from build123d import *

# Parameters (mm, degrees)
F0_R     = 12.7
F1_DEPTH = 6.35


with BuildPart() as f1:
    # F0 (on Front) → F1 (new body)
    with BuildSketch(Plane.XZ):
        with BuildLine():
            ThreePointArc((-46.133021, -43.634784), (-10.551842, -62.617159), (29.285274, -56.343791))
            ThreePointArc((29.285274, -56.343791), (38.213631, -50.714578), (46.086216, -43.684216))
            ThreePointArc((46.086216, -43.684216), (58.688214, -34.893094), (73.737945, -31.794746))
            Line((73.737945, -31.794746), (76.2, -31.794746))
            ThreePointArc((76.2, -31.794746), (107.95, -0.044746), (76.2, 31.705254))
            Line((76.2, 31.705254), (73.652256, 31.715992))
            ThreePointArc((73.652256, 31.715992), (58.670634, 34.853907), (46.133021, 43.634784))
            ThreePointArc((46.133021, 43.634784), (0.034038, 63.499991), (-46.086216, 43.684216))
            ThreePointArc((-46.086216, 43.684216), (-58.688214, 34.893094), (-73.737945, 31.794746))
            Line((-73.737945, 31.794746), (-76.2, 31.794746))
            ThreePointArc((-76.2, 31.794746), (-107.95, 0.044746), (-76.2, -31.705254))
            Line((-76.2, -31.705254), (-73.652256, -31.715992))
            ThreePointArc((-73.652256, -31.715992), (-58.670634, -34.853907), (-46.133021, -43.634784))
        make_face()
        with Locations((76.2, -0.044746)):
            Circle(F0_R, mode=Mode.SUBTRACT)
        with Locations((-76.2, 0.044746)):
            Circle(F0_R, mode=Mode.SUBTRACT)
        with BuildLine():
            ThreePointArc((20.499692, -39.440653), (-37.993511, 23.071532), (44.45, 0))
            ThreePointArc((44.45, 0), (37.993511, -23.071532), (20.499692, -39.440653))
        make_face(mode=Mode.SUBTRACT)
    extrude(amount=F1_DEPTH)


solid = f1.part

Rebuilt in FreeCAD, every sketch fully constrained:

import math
import FreeCAD as App
import Part
import Sketcher
Q = App.Units.Quantity

doc = App.newDocument("Part")
body = doc.addObject("PartDesign::Body", "Body")

sketch1 = body.newObject("Sketcher::SketchObject", "Sketch")
sketch1.AttachmentSupport = (doc.getObject("XZ_Plane"), [""])
sketch1.MapMode = "FlatFace"
sketch1.addGeometry([
    Part.ArcOfCircle(Part.Circle(App.Vector(0.000001, 0.000002, 0), App.Vector(0, 0, 1), 63.500002), math.radians(-136.594128), math.radians(-62.536375)),
    Part.ArcOfCircle(Part.Circle(App.Vector(-0.00001, 0.000013, 0), App.Vector(0, 0, 1), 63.500017), math.radians(-62.53637), math.radians(-43.467296)),
    Part.ArcOfCircle(Part.Circle(App.Vector(73.737942, -69.894739, 0), App.Vector(0, 0, 1), 38.099993), math.radians(89.999996), math.radians(136.532709)),
    Part.LineSegment(App.Vector(73.737945, -31.794746, 0), App.Vector(76.2, -31.794746, 0)),
    Part.ArcOfCircle(Part.Circle(App.Vector(76.2, -0.044746, 0), App.Vector(0, 0, 1), 31.75), math.radians(-90), math.radians(90)),
    Part.LineSegment(App.Vector(76.2, 31.705254, 0), App.Vector(73.652256, 31.715992, 0)),
    Part.ArcOfCircle(Part.Circle(App.Vector(73.812837, 69.81566, 0), App.Vector(0, 0, 1), 38.100006), math.radians(-136.594127), math.radians(-90.241487)),
    Part.ArcOfCircle(Part.Circle(App.Vector(0, 0, 0), App.Vector(0, 0, 1), 63.5), math.radians(43.40587), math.radians(136.532705)),
    Part.ArcOfCircle(Part.Circle(App.Vector(-73.737942, 69.894739, 0), App.Vector(0, 0, 1), 38.099993), math.radians(-90.000004), math.radians(-43.467291)),
    Part.LineSegment(App.Vector(-73.737945, 31.794746, 0), App.Vector(-76.2, 31.794746, 0)),
    Part.ArcOfCircle(Part.Circle(App.Vector(-76.2, 0.044746, 0), App.Vector(0, 0, 1), 31.75), math.radians(90), math.radians(270)),
    Part.LineSegment(App.Vector(-76.2, -31.705254, 0), App.Vector(-73.652256, -31.715992, 0)),
    Part.ArcOfCircle(Part.Circle(App.Vector(-73.812837, -69.81566, 0), App.Vector(0, 0, 1), 38.100006), math.radians(43.405873), math.radians(89.758513)),
    Part.Circle(App.Vector(76.2, -0.044746, 0), App.Vector(0, 0, 1), 12.7),
    Part.Circle(App.Vector(-76.2, 0.044746, 0), App.Vector(0, 0, 1), 12.7),
    Part.ArcOfCircle(Part.Circle(App.Vector(-0.000001, 0.000001, 0), App.Vector(0, 0, 1), 44.450001), math.radians(-62.536372), math.radians(-0.000001)),
    Part.ArcOfCircle(Part.Circle(App.Vector(0, 0, 0), App.Vector(0, 0, 1), 44.45), math.radians(0), math.radians(297.463627)),
], False)
sketch1.addConstraint([
    Sketcher.Constraint("Tangent", 0, 2, 1, 1),
    Sketcher.Constraint("Tangent", 1, 2, 2, 2),
    Sketcher.Constraint("Tangent", 2, 1, 3, 1),
    Sketcher.Constraint("Tangent", 3, 2, 4, 1),
    Sketcher.Constraint("Coincident", 4, 2, 5, 1),
    Sketcher.Constraint("Tangent", 5, 2, 6, 2),
    Sketcher.Constraint("Tangent", 6, 1, 7, 1),
    Sketcher.Constraint("Tangent", 7, 2, 8, 2),
    Sketcher.Constraint("Tangent", 8, 1, 9, 1),
    Sketcher.Constraint("Tangent", 9, 2, 10, 1),
    Sketcher.Constraint("Coincident", 10, 2, 11, 1),
    Sketcher.Constraint("Tangent", 11, 2, 12, 2),
    Sketcher.Constraint("Tangent", 12, 1, 0, 1),
    Sketcher.Constraint("Tangent", 15, 1, 16, 2),
    Sketcher.Constraint("Coincident", 16, 1, 15, 2),
    Sketcher.Constraint("Horizontal", 3),
    Sketcher.Constraint("Horizontal", 9),
    Sketcher.Constraint("Coincident", 0, 3, -1, 1),
    Sketcher.Constraint("Coincident", 7, 3, -1, 1),
    Sketcher.Constraint("Coincident", 15, 3, -1, 1),
    Sketcher.Constraint("Coincident", 13, 3, 4, 3),
    Sketcher.Constraint("Coincident", 14, 3, 10, 3),
    Sketcher.Constraint("Equal", 0, 7),
    Sketcher.Constraint("Equal", 2, 8),
    Sketcher.Constraint("Equal", 4, 10),
    Sketcher.Constraint("Equal", 6, 12),
    Sketcher.Constraint("Equal", 13, 14),
    Sketcher.Constraint("Symmetric", 2, 3, 8, 3, -1, 1),
    Sketcher.Constraint("Symmetric", 5, 2, 11, 2, -1, 1),
    Sketcher.Constraint("PointOnObject", 16, 1, -1),
    Sketcher.Constraint("Vertical", 3, 2, 4, 2),
    Sketcher.Constraint("Vertical", 9, 2, 10, 2),
    Sketcher.Constraint("Diameter", 13, Q("1 in")),
    Sketcher.Constraint("Radius", 0, Q("2.5000001 in")),
    Sketcher.Constraint("Radius", 4, Q("1.25 in")),
    Sketcher.Constraint("Radius", 15, Q("1.7500001 in")),
    Sketcher.Constraint("DistanceX", -1, 1, 4, 3, Q("3 in")),
    Sketcher.Constraint("Radius", 2, 38.099993),
    Sketcher.Constraint("Radius", 6, 38.100006),
    Sketcher.Constraint("DistanceY", 2, 3, 6, 3, 139.710399),
    Sketcher.Constraint("DistanceX", 3, 1, 3, 2, 2.462055),
    Sketcher.Constraint("DistanceY", 0, 2, -1, 1, 56.343791),
    Sketcher.Constraint("DistanceX", -1, 1, 15, 1, 20.499692),
])
pad1 = body.newObject("PartDesign::Pad", "Pad")
pad1.Profile = sketch1
pad1.Length = Q("0.25 in")

doc.recompute()
